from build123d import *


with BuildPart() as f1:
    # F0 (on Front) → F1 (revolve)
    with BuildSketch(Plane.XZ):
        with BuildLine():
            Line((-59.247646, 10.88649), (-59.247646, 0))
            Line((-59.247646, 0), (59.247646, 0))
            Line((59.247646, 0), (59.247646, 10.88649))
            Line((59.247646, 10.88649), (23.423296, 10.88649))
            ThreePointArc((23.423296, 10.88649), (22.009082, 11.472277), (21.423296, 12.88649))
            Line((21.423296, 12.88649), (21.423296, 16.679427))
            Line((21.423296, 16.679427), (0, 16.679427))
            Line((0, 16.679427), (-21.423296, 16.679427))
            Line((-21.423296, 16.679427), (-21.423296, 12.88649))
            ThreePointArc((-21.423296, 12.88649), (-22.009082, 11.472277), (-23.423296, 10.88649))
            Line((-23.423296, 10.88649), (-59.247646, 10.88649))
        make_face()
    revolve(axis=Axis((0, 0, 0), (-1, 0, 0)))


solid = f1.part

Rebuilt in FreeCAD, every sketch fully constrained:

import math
import FreeCAD as App
import Part
import Sketcher

V = App.Vector
Q = App.Units.Quantity

doc = App.newDocument("Part")
params = doc.addObject("Spreadsheet::Sheet", "Params")
for row, (alias, value) in enumerate([
    ("sketch1_radius", "2 mm"),
    ("revolution_angle", "360 deg"),
], start=1):
    params.set(f"A{row}", alias)
    params.set(f"B{row}", "=" + value)
    params.setAlias(f"B{row}", alias)

body = doc.addObject("PartDesign::Body", "Body")

# Sketch on XZ plane
sketch1 = body.newObject("Sketcher::SketchObject", "Sketch")
sketch1.AttachmentSupport = (doc.getObject("XZ_Plane"), [""])
sketch1.MapMode = "FlatFace"
sketch1.addGeometry([
    Part.LineSegment(V(-59.2, 10.9, 0), V(-59.2, 0, 0)),  # 0
    Part.LineSegment(V(-59.2, 0, 0), V(59.2, 0, 0)),  # 1
    Part.LineSegment(V(59.2, 0, 0), V(59.2, 10.9, 0)),  # 2
    Part.LineSegment(V(59.2, 10.9, 0), V(23.4, 10.9, 0)),  # 3
    Part.ArcOfCircle(Part.Circle(V(23.4, 12.9, 0), V(0, 0, 1), 2), math.radians(-180), math.radians(-90)),  # 4
    Part.LineSegment(V(21.4, 12.9, 0), V(21.4, 16.7, 0)),  # 5
    Part.LineSegment(V(21.4, 16.7, 0), V(-21.4, 16.7, 0)),  # 6
    Part.LineSegment(V(-21.4, 16.7, 0), V(-21.4, 12.9, 0)),  # 7
    Part.ArcOfCircle(Part.Circle(V(-23.4, 12.9, 0), V(0, 0, 1), 2), math.radians(-90), math.radians(0)),  # 8
    Part.LineSegment(V(-23.4, 10.9, 0), V(-59.2, 10.9, 0)),  # 9
], False)
sketch1.addConstraint([
    Sketcher.Constraint("Coincident", 0, 2, 1, 1),
    Sketcher.Constraint("Coincident", 1, 2, 2, 1),
    Sketcher.Constraint("Coincident", 2, 2, 3, 1),
    Sketcher.Constraint("Tangent", 3, 2, 4, 2),
    Sketcher.Constraint("Tangent", 4, 1, 5, 1),
    Sketcher.Constraint("Coincident", 5, 2, 6, 1),
    Sketcher.Constraint("Coincident", 6, 2, 7, 1),
    Sketcher.Constraint("Tangent", 7, 2, 8, 2),
    Sketcher.Constraint("Tangent", 8, 1, 9, 1),
    Sketcher.Constraint("Coincident", 9, 2, 0, 1),
    Sketcher.Constraint("Vertical", 0),
    Sketcher.Constraint("Horizontal", 1),
    Sketcher.Constraint("Vertical", 2),
    Sketcher.Constraint("Horizontal", 3),
    Sketcher.Constraint("Vertical", 5),
    Sketcher.Constraint("Horizontal", 6),
    Sketcher.Constraint("Vertical", 7),
    Sketcher.Constraint("Horizontal", 9),
    Sketcher.Constraint("Equal", 4, 8),
    Sketcher.Constraint("Symmetric", 0, 2, 1, 2, -1, 1),
    Sketcher.Constraint("Symmetric", 4, 3, 8, 3, -2),
    Sketcher.Constraint("Radius", 4, Q("2 mm")),
    Sketcher.Constraint("DistanceX", 3, 2, 3, 1, Q("35.82435 mm")),
    Sketcher.Constraint("DistanceY", 0, 2, 0, 1, Q("10.88649 mm")),
    Sketcher.Constraint("DistanceX", 1, 1, 1, 2, Q("118.495292 mm")),
    Sketcher.Constraint("DistanceY", 5, 1, 5, 2, Q("3.792937 mm")),
])
sketch1.setExpression("Constraints[21]", "Params.sketch1_radius")
revolution = body.newObject("PartDesign::Revolution", "Revolution")
revolution.Profile = sketch1
revolution.ReferenceAxis = (sketch1, ["H_Axis"])
revolution.setExpression("Angle", "Params.revolution_angle")

doc.recompute()
